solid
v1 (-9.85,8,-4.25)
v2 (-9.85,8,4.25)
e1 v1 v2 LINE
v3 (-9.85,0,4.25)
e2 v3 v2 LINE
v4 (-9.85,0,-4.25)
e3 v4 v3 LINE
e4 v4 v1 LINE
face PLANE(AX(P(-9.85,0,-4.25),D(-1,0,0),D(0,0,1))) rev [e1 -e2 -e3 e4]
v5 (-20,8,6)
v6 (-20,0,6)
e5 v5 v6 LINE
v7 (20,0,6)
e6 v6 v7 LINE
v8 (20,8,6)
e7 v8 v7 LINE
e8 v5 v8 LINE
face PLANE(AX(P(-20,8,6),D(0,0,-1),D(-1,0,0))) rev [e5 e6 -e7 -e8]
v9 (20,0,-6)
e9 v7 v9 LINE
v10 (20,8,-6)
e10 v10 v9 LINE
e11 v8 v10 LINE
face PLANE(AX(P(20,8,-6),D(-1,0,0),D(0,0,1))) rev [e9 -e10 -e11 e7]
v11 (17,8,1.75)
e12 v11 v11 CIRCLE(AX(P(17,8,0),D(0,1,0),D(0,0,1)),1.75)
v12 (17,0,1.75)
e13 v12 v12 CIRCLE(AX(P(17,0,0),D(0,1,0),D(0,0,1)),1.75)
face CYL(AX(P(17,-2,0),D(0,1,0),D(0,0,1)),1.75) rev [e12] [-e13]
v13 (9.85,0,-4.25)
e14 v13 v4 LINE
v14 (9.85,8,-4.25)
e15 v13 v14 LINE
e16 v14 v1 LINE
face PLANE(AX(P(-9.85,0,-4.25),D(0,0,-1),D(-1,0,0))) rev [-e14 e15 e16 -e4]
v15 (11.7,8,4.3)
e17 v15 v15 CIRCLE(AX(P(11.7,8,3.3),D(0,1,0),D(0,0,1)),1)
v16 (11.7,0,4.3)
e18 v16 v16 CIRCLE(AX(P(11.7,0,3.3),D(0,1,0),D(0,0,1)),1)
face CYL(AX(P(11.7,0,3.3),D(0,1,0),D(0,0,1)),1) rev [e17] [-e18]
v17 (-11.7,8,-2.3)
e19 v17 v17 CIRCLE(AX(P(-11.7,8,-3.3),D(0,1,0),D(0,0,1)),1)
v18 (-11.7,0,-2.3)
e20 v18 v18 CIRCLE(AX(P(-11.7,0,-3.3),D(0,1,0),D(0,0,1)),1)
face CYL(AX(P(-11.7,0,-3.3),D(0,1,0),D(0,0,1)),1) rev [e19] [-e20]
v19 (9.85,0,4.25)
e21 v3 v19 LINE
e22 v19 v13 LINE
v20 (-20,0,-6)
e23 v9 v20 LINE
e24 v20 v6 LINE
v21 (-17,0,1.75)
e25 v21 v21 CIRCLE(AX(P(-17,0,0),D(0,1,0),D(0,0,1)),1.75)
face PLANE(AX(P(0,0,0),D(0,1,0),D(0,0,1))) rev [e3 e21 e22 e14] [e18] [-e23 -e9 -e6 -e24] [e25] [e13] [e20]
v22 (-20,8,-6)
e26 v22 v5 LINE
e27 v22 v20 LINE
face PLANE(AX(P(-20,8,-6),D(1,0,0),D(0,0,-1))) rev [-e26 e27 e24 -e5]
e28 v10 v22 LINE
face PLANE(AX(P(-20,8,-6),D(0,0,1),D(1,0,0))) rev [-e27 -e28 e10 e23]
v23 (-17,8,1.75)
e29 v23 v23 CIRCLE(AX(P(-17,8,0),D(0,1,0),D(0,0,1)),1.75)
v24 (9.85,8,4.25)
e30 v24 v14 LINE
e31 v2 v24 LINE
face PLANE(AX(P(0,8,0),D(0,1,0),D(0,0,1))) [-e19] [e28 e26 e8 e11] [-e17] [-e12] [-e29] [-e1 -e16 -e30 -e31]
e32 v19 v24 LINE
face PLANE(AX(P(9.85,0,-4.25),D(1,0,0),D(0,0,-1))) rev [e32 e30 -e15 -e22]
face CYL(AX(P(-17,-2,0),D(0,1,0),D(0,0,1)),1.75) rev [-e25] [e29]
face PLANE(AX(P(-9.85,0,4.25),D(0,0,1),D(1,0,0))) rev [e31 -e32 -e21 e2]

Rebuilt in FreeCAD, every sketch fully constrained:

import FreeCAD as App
import Part
import Sketcher

V = App.Vector


def add_polygon(sketch, points):
    """Adds a closed chain of lines whose ends are joined by coincident constraints."""
    first, n = sketch.GeometryCount, len(points)
    for a, b in zip(points, points[1:] + points[:1]):
        sketch.addGeometry(Part.LineSegment(App.Vector(*a, 0), App.Vector(*b, 0)), False)
    for i in range(n):
        sketch.addConstraint(Sketcher.Constraint("Coincident", first + i, 2, first + (i + 1) % n, 1))

doc = App.newDocument("Part")
body = doc.addObject("PartDesign::Body", "Body")

sketch1 = body.newObject("Sketcher::SketchObject", "Sketch")
sketch1.AttachmentSupport = (doc.getObject("XZ_Plane"), [""])
sketch1.MapMode = "FlatFace"
add_polygon(sketch1, [(-20, -6), (-20, 6), (20, 6), (20, -6)])
sketch1.addConstraint(Sketcher.Constraint("Vertical", 0))
sketch1.addConstraint(Sketcher.Constraint("Horizontal", 1))
sketch1.addConstraint(Sketcher.Constraint("Vertical", 2))
sketch1.addConstraint(Sketcher.Constraint("Horizontal", 3))
sketch1.addConstraint(Sketcher.Constraint("Symmetric", 0, 2, 2, 2, -1, 1))
sketch1.addConstraint(Sketcher.Constraint("DistanceX", 1, 1, 1, 2, 40.0))
sketch1.addConstraint(Sketcher.Constraint("DistanceY", 0, 1, 0, 2, 12.0))
pad1 = body.newObject("PartDesign::Pad", "Pad")
pad1.Profile = sketch1
pad1.Length = 8
pad1.Reversed = True

sketch2 = body.newObject("Sketcher::SketchObject", "Sketch001")
sketch2.AttachmentSupport = (doc.getObject("XZ_Plane"), [""])
sketch2.MapMode = "FlatFace"
sketch2.AttachmentOffset = App.Placement(V(0, 0, -8), App.Rotation())
add_polygon(sketch2, [(-10, -4), (-10, 4), (10, 4), (10, -4)])
sketch2.addConstraint(Sketcher.Constraint("Vertical", 0))
sketch2.addConstraint(Sketcher.Constraint("Horizontal", 1))
sketch2.addConstraint(Sketcher.Constraint("Vertical", 2))
sketch2.addConstraint(Sketcher.Constraint("Horizontal", 3))
sketch2.addConstraint(Sketcher.Constraint("Symmetric", 0, 2, 2, 2, -1, 1))
sketch2.addConstraint(Sketcher.Constraint("DistanceX", 1, 1, 1, 2, 19.7))
sketch2.addConstraint(Sketcher.Constraint("DistanceY", 0, 1, 0, 2, 8.5))
pocket1 = body.newObject("PartDesign::Pocket", "Pocket")
pocket1.Profile = sketch2
pocket1.Length = 8
pocket1.Reversed = True

sketch3 = body.newObject("Sketcher::SketchObject", "Sketch002")
sketch3.AttachmentSupport = (doc.getObject("XZ_Plane"), [""])
sketch3.MapMode = "FlatFace"
sketch3.AttachmentOffset = App.Placement(V(0, 0, -8), App.Rotation())
sketch3.addGeometry(Part.Circle(V(-11.7, -3.3, 0), V(0, 0, 1), 1), False)
sketch3.addGeometry(Part.Circle(V(11.7, 3.3, 0), V(0, 0, 1), 1), False)
sketch3.addConstraint(Sketcher.Constraint("Equal", 0, 1))
sketch3.addConstraint(Sketcher.Constraint("Symmetric", 0, 3, 1, 3, -1, 1))
sketch3.addConstraint(Sketcher.Constraint("Diameter", 0, 2.0))
sketch3.addConstraint(Sketcher.Constraint("DistanceX", 0, 3, -1, 1, 11.7))
sketch3.addConstraint(Sketcher.Constraint("DistanceY", 0, 3, -1, 1, 3.3))
pocket2 = body.newObject("PartDesign::Pocket", "Pocket001")
pocket2.Profile = sketch3
pocket2.Length = 8
pocket2.Reversed = True

sketch4 = body.newObject("Sketcher::SketchObject", "Sketch003")
sketch4.AttachmentSupport = (doc.getObject("XZ_Plane"), [""])
sketch4.MapMode = "FlatFace"
sketch4.AttachmentOffset = App.Placement(V(0, 0, -8), App.Rotation())
sketch4.addGeometry(Part.Circle(V(-17, 0, 0), V(0, 0, 1), 1.8), False)
sketch4.addGeometry(Part.Circle(V(17, 0, 0), V(0, 0, 1), 1.8), False)
sketch4.addConstraint(Sketcher.Constraint("Equal", 0, 1))
sketch4.addConstraint(Sketcher.Constraint("Symmetric", 0, 3, 1, 3, -1, 1))
sketch4.addConstraint(Sketcher.Constraint("PointOnObject", 0, 3, -1))
sketch4.addConstraint(Sketcher.Constraint("Diameter", 0, 3.5))
sketch4.addConstraint(Sketcher.Constraint("DistanceX", 0, 3, -1, 1, 17.0))
pocket3 = body.newObject("PartDesign::Pocket", "Pocket002")
pocket3.Profile = sketch4
pocket3.Length = 10
pocket3.Reversed = True

doc.recompute()
